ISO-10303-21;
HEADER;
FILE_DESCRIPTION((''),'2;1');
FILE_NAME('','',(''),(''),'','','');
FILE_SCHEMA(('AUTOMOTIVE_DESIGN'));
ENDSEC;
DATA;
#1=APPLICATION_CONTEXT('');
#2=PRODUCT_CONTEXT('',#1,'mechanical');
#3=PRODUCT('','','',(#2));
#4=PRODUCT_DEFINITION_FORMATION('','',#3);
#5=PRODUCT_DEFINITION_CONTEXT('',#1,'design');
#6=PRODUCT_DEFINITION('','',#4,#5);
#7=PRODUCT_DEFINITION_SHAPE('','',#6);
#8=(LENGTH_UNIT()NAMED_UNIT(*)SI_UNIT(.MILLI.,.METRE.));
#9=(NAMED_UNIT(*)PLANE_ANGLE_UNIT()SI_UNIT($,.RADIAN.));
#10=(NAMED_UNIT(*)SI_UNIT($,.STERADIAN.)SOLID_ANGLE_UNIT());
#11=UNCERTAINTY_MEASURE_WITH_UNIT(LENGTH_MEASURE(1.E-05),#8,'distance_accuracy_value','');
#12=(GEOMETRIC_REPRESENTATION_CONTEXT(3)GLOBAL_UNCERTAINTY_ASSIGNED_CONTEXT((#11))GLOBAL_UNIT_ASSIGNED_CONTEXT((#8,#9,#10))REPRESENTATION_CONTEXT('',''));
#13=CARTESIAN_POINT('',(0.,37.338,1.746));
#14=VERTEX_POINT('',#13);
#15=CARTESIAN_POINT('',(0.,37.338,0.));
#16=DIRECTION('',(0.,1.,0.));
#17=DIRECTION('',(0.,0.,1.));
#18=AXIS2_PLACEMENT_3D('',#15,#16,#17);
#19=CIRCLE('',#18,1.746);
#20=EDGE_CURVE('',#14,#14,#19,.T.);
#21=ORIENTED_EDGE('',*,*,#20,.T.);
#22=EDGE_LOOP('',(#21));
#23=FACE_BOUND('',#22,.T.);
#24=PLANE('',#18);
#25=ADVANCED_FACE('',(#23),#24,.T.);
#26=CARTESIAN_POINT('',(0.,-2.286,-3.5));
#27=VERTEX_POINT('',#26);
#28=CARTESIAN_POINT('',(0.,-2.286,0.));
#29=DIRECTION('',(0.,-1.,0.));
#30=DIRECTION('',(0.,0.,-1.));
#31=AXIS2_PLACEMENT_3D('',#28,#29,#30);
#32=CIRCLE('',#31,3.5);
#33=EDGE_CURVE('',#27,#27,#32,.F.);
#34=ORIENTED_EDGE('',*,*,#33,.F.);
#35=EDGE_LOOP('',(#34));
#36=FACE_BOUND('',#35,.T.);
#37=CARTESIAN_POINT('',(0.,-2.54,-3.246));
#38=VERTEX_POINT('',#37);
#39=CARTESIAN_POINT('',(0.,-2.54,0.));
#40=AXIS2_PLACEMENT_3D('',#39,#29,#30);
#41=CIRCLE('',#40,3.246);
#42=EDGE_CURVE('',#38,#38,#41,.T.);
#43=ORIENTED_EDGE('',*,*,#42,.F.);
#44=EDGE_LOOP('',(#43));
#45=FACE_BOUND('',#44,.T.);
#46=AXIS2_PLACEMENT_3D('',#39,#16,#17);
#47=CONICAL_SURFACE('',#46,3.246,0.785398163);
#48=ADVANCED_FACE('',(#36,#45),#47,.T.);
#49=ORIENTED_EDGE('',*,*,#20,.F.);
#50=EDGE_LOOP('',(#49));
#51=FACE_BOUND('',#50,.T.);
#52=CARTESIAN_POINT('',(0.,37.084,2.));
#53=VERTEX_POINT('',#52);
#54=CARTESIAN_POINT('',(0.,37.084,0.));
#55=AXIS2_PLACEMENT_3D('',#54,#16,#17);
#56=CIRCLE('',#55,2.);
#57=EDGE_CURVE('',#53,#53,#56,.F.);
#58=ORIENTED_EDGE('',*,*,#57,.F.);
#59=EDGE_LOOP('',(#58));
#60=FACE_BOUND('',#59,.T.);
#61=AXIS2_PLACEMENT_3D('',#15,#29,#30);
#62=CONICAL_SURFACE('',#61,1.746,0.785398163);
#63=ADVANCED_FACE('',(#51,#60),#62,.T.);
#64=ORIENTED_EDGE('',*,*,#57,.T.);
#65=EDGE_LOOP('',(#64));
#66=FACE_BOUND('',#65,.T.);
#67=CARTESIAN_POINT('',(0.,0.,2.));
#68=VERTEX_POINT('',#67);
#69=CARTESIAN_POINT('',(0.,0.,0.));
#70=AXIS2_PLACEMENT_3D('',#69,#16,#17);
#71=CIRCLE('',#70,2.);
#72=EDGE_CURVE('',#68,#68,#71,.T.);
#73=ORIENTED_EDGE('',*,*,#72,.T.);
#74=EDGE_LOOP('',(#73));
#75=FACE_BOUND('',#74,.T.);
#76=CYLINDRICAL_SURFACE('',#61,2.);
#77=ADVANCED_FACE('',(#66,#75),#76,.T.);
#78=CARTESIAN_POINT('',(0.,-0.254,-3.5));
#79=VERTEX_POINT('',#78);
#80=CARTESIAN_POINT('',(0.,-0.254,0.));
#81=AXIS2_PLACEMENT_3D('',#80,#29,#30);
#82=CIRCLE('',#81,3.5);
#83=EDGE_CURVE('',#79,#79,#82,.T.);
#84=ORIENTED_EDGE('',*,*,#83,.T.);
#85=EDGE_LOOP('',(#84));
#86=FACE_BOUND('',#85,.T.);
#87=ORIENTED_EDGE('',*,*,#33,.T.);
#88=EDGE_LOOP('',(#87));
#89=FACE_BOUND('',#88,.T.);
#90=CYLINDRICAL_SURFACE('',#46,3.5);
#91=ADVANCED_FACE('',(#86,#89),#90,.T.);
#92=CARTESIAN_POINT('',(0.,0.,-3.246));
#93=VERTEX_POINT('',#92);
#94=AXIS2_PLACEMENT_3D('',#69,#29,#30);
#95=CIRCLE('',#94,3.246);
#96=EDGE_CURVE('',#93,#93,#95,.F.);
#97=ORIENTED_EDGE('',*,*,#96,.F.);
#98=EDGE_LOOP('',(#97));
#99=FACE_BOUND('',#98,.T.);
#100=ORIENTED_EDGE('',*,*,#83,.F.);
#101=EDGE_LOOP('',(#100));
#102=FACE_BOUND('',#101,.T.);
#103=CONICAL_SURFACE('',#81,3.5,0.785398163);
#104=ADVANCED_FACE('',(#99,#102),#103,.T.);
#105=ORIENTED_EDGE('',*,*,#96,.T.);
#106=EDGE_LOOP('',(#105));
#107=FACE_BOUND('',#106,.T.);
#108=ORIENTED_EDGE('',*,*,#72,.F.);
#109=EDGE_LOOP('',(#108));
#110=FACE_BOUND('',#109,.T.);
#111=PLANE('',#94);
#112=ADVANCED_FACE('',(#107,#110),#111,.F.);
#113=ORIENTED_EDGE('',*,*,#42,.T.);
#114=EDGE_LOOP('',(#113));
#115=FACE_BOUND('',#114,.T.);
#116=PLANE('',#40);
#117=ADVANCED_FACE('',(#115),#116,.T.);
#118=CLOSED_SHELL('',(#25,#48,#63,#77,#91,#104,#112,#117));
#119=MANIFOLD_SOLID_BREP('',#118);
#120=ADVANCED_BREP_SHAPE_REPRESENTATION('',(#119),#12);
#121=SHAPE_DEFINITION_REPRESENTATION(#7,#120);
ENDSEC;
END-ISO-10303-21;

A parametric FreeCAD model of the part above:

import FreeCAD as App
import Part
import Sketcher
Q = App.Units.Quantity


def edges_at(feature, points):
    """Names of the edges that pass closest to the given points."""
    edges = feature.Shape.Edges
    near = lambda p: min(range(len(edges)), key=lambda i: edges[i].distToShape(Part.Vertex(*p))[0])
    return sorted({f"Edge{near(p) + 1}" for p in points})

doc = App.newDocument("Part")
body = doc.addObject("PartDesign::Body", "Body")

# Sketch on XZ plane
sketch1 = doc.addObject("Sketcher::SketchObject", "Sketch")
body.addObject(sketch1)
sketch1.AttachmentSupport = (doc.XZ_Plane, [""])
sketch1.MapMode = "FlatFace"
sketch1.addGeometry(Part.Circle(App.Vector(0, 0, 0), App.Vector(0, 0, 1), 2), False)
sketch1.addConstraint([
    Sketcher.Constraint("Coincident", 0, 3, -1, 1),
    Sketcher.Constraint("Diameter", 0, 4.0),
])
pad1 = doc.addObject("PartDesign::Pad", "Pad")
body.addObject(pad1)
pad1.Profile = sketch1
pad1.Length = Q("1.47 in")
pad1.Reversed = True

# Sketch on XZ plane
sketch2 = doc.addObject("Sketcher::SketchObject", "Sketch001")
body.addObject(sketch2)
sketch2.AttachmentSupport = (doc.XZ_Plane, [""])
sketch2.MapMode = "FlatFace"
sketch2.addGeometry(Part.Circle(App.Vector(0, 0, 0), App.Vector(0, 0, 1), 3.5), False)
sketch2.addConstraint([
    Sketcher.Constraint("Coincident", 0, 3, -1, 1),
    Sketcher.Constraint("Diameter", 0, 7.0),
])
pad2 = doc.addObject("PartDesign::Pad", "Pad001")
body.addObject(pad2)
pad2.Profile = sketch2
pad2.Length = Q("0.1 in")
doc.recompute()

chamfer = doc.addObject("PartDesign::Chamfer", "Chamfer")
body.addObject(chamfer)
chamfer.Base = (pad2, edges_at(pad2, [(0, -2.54, 3.5)]))
chamfer.Size = Q("0.01 in")
doc.recompute()

chamfer2 = doc.addObject("PartDesign::Chamfer", "Chamfer001")
body.addObject(chamfer2)
chamfer2.Base = (chamfer, edges_at(chamfer, [(0, 37.338, -2)]))
chamfer2.Size = Q("0.01 in")
doc.recompute()

chamfer3 = doc.addObject("PartDesign::Chamfer", "Chamfer002")
body.addObject(chamfer3)
chamfer3.Base = (chamfer2, edges_at(chamfer2, [(0, 0, 3.5)]))
chamfer3.Size = Q("0.01 in")

doc.recompute()
